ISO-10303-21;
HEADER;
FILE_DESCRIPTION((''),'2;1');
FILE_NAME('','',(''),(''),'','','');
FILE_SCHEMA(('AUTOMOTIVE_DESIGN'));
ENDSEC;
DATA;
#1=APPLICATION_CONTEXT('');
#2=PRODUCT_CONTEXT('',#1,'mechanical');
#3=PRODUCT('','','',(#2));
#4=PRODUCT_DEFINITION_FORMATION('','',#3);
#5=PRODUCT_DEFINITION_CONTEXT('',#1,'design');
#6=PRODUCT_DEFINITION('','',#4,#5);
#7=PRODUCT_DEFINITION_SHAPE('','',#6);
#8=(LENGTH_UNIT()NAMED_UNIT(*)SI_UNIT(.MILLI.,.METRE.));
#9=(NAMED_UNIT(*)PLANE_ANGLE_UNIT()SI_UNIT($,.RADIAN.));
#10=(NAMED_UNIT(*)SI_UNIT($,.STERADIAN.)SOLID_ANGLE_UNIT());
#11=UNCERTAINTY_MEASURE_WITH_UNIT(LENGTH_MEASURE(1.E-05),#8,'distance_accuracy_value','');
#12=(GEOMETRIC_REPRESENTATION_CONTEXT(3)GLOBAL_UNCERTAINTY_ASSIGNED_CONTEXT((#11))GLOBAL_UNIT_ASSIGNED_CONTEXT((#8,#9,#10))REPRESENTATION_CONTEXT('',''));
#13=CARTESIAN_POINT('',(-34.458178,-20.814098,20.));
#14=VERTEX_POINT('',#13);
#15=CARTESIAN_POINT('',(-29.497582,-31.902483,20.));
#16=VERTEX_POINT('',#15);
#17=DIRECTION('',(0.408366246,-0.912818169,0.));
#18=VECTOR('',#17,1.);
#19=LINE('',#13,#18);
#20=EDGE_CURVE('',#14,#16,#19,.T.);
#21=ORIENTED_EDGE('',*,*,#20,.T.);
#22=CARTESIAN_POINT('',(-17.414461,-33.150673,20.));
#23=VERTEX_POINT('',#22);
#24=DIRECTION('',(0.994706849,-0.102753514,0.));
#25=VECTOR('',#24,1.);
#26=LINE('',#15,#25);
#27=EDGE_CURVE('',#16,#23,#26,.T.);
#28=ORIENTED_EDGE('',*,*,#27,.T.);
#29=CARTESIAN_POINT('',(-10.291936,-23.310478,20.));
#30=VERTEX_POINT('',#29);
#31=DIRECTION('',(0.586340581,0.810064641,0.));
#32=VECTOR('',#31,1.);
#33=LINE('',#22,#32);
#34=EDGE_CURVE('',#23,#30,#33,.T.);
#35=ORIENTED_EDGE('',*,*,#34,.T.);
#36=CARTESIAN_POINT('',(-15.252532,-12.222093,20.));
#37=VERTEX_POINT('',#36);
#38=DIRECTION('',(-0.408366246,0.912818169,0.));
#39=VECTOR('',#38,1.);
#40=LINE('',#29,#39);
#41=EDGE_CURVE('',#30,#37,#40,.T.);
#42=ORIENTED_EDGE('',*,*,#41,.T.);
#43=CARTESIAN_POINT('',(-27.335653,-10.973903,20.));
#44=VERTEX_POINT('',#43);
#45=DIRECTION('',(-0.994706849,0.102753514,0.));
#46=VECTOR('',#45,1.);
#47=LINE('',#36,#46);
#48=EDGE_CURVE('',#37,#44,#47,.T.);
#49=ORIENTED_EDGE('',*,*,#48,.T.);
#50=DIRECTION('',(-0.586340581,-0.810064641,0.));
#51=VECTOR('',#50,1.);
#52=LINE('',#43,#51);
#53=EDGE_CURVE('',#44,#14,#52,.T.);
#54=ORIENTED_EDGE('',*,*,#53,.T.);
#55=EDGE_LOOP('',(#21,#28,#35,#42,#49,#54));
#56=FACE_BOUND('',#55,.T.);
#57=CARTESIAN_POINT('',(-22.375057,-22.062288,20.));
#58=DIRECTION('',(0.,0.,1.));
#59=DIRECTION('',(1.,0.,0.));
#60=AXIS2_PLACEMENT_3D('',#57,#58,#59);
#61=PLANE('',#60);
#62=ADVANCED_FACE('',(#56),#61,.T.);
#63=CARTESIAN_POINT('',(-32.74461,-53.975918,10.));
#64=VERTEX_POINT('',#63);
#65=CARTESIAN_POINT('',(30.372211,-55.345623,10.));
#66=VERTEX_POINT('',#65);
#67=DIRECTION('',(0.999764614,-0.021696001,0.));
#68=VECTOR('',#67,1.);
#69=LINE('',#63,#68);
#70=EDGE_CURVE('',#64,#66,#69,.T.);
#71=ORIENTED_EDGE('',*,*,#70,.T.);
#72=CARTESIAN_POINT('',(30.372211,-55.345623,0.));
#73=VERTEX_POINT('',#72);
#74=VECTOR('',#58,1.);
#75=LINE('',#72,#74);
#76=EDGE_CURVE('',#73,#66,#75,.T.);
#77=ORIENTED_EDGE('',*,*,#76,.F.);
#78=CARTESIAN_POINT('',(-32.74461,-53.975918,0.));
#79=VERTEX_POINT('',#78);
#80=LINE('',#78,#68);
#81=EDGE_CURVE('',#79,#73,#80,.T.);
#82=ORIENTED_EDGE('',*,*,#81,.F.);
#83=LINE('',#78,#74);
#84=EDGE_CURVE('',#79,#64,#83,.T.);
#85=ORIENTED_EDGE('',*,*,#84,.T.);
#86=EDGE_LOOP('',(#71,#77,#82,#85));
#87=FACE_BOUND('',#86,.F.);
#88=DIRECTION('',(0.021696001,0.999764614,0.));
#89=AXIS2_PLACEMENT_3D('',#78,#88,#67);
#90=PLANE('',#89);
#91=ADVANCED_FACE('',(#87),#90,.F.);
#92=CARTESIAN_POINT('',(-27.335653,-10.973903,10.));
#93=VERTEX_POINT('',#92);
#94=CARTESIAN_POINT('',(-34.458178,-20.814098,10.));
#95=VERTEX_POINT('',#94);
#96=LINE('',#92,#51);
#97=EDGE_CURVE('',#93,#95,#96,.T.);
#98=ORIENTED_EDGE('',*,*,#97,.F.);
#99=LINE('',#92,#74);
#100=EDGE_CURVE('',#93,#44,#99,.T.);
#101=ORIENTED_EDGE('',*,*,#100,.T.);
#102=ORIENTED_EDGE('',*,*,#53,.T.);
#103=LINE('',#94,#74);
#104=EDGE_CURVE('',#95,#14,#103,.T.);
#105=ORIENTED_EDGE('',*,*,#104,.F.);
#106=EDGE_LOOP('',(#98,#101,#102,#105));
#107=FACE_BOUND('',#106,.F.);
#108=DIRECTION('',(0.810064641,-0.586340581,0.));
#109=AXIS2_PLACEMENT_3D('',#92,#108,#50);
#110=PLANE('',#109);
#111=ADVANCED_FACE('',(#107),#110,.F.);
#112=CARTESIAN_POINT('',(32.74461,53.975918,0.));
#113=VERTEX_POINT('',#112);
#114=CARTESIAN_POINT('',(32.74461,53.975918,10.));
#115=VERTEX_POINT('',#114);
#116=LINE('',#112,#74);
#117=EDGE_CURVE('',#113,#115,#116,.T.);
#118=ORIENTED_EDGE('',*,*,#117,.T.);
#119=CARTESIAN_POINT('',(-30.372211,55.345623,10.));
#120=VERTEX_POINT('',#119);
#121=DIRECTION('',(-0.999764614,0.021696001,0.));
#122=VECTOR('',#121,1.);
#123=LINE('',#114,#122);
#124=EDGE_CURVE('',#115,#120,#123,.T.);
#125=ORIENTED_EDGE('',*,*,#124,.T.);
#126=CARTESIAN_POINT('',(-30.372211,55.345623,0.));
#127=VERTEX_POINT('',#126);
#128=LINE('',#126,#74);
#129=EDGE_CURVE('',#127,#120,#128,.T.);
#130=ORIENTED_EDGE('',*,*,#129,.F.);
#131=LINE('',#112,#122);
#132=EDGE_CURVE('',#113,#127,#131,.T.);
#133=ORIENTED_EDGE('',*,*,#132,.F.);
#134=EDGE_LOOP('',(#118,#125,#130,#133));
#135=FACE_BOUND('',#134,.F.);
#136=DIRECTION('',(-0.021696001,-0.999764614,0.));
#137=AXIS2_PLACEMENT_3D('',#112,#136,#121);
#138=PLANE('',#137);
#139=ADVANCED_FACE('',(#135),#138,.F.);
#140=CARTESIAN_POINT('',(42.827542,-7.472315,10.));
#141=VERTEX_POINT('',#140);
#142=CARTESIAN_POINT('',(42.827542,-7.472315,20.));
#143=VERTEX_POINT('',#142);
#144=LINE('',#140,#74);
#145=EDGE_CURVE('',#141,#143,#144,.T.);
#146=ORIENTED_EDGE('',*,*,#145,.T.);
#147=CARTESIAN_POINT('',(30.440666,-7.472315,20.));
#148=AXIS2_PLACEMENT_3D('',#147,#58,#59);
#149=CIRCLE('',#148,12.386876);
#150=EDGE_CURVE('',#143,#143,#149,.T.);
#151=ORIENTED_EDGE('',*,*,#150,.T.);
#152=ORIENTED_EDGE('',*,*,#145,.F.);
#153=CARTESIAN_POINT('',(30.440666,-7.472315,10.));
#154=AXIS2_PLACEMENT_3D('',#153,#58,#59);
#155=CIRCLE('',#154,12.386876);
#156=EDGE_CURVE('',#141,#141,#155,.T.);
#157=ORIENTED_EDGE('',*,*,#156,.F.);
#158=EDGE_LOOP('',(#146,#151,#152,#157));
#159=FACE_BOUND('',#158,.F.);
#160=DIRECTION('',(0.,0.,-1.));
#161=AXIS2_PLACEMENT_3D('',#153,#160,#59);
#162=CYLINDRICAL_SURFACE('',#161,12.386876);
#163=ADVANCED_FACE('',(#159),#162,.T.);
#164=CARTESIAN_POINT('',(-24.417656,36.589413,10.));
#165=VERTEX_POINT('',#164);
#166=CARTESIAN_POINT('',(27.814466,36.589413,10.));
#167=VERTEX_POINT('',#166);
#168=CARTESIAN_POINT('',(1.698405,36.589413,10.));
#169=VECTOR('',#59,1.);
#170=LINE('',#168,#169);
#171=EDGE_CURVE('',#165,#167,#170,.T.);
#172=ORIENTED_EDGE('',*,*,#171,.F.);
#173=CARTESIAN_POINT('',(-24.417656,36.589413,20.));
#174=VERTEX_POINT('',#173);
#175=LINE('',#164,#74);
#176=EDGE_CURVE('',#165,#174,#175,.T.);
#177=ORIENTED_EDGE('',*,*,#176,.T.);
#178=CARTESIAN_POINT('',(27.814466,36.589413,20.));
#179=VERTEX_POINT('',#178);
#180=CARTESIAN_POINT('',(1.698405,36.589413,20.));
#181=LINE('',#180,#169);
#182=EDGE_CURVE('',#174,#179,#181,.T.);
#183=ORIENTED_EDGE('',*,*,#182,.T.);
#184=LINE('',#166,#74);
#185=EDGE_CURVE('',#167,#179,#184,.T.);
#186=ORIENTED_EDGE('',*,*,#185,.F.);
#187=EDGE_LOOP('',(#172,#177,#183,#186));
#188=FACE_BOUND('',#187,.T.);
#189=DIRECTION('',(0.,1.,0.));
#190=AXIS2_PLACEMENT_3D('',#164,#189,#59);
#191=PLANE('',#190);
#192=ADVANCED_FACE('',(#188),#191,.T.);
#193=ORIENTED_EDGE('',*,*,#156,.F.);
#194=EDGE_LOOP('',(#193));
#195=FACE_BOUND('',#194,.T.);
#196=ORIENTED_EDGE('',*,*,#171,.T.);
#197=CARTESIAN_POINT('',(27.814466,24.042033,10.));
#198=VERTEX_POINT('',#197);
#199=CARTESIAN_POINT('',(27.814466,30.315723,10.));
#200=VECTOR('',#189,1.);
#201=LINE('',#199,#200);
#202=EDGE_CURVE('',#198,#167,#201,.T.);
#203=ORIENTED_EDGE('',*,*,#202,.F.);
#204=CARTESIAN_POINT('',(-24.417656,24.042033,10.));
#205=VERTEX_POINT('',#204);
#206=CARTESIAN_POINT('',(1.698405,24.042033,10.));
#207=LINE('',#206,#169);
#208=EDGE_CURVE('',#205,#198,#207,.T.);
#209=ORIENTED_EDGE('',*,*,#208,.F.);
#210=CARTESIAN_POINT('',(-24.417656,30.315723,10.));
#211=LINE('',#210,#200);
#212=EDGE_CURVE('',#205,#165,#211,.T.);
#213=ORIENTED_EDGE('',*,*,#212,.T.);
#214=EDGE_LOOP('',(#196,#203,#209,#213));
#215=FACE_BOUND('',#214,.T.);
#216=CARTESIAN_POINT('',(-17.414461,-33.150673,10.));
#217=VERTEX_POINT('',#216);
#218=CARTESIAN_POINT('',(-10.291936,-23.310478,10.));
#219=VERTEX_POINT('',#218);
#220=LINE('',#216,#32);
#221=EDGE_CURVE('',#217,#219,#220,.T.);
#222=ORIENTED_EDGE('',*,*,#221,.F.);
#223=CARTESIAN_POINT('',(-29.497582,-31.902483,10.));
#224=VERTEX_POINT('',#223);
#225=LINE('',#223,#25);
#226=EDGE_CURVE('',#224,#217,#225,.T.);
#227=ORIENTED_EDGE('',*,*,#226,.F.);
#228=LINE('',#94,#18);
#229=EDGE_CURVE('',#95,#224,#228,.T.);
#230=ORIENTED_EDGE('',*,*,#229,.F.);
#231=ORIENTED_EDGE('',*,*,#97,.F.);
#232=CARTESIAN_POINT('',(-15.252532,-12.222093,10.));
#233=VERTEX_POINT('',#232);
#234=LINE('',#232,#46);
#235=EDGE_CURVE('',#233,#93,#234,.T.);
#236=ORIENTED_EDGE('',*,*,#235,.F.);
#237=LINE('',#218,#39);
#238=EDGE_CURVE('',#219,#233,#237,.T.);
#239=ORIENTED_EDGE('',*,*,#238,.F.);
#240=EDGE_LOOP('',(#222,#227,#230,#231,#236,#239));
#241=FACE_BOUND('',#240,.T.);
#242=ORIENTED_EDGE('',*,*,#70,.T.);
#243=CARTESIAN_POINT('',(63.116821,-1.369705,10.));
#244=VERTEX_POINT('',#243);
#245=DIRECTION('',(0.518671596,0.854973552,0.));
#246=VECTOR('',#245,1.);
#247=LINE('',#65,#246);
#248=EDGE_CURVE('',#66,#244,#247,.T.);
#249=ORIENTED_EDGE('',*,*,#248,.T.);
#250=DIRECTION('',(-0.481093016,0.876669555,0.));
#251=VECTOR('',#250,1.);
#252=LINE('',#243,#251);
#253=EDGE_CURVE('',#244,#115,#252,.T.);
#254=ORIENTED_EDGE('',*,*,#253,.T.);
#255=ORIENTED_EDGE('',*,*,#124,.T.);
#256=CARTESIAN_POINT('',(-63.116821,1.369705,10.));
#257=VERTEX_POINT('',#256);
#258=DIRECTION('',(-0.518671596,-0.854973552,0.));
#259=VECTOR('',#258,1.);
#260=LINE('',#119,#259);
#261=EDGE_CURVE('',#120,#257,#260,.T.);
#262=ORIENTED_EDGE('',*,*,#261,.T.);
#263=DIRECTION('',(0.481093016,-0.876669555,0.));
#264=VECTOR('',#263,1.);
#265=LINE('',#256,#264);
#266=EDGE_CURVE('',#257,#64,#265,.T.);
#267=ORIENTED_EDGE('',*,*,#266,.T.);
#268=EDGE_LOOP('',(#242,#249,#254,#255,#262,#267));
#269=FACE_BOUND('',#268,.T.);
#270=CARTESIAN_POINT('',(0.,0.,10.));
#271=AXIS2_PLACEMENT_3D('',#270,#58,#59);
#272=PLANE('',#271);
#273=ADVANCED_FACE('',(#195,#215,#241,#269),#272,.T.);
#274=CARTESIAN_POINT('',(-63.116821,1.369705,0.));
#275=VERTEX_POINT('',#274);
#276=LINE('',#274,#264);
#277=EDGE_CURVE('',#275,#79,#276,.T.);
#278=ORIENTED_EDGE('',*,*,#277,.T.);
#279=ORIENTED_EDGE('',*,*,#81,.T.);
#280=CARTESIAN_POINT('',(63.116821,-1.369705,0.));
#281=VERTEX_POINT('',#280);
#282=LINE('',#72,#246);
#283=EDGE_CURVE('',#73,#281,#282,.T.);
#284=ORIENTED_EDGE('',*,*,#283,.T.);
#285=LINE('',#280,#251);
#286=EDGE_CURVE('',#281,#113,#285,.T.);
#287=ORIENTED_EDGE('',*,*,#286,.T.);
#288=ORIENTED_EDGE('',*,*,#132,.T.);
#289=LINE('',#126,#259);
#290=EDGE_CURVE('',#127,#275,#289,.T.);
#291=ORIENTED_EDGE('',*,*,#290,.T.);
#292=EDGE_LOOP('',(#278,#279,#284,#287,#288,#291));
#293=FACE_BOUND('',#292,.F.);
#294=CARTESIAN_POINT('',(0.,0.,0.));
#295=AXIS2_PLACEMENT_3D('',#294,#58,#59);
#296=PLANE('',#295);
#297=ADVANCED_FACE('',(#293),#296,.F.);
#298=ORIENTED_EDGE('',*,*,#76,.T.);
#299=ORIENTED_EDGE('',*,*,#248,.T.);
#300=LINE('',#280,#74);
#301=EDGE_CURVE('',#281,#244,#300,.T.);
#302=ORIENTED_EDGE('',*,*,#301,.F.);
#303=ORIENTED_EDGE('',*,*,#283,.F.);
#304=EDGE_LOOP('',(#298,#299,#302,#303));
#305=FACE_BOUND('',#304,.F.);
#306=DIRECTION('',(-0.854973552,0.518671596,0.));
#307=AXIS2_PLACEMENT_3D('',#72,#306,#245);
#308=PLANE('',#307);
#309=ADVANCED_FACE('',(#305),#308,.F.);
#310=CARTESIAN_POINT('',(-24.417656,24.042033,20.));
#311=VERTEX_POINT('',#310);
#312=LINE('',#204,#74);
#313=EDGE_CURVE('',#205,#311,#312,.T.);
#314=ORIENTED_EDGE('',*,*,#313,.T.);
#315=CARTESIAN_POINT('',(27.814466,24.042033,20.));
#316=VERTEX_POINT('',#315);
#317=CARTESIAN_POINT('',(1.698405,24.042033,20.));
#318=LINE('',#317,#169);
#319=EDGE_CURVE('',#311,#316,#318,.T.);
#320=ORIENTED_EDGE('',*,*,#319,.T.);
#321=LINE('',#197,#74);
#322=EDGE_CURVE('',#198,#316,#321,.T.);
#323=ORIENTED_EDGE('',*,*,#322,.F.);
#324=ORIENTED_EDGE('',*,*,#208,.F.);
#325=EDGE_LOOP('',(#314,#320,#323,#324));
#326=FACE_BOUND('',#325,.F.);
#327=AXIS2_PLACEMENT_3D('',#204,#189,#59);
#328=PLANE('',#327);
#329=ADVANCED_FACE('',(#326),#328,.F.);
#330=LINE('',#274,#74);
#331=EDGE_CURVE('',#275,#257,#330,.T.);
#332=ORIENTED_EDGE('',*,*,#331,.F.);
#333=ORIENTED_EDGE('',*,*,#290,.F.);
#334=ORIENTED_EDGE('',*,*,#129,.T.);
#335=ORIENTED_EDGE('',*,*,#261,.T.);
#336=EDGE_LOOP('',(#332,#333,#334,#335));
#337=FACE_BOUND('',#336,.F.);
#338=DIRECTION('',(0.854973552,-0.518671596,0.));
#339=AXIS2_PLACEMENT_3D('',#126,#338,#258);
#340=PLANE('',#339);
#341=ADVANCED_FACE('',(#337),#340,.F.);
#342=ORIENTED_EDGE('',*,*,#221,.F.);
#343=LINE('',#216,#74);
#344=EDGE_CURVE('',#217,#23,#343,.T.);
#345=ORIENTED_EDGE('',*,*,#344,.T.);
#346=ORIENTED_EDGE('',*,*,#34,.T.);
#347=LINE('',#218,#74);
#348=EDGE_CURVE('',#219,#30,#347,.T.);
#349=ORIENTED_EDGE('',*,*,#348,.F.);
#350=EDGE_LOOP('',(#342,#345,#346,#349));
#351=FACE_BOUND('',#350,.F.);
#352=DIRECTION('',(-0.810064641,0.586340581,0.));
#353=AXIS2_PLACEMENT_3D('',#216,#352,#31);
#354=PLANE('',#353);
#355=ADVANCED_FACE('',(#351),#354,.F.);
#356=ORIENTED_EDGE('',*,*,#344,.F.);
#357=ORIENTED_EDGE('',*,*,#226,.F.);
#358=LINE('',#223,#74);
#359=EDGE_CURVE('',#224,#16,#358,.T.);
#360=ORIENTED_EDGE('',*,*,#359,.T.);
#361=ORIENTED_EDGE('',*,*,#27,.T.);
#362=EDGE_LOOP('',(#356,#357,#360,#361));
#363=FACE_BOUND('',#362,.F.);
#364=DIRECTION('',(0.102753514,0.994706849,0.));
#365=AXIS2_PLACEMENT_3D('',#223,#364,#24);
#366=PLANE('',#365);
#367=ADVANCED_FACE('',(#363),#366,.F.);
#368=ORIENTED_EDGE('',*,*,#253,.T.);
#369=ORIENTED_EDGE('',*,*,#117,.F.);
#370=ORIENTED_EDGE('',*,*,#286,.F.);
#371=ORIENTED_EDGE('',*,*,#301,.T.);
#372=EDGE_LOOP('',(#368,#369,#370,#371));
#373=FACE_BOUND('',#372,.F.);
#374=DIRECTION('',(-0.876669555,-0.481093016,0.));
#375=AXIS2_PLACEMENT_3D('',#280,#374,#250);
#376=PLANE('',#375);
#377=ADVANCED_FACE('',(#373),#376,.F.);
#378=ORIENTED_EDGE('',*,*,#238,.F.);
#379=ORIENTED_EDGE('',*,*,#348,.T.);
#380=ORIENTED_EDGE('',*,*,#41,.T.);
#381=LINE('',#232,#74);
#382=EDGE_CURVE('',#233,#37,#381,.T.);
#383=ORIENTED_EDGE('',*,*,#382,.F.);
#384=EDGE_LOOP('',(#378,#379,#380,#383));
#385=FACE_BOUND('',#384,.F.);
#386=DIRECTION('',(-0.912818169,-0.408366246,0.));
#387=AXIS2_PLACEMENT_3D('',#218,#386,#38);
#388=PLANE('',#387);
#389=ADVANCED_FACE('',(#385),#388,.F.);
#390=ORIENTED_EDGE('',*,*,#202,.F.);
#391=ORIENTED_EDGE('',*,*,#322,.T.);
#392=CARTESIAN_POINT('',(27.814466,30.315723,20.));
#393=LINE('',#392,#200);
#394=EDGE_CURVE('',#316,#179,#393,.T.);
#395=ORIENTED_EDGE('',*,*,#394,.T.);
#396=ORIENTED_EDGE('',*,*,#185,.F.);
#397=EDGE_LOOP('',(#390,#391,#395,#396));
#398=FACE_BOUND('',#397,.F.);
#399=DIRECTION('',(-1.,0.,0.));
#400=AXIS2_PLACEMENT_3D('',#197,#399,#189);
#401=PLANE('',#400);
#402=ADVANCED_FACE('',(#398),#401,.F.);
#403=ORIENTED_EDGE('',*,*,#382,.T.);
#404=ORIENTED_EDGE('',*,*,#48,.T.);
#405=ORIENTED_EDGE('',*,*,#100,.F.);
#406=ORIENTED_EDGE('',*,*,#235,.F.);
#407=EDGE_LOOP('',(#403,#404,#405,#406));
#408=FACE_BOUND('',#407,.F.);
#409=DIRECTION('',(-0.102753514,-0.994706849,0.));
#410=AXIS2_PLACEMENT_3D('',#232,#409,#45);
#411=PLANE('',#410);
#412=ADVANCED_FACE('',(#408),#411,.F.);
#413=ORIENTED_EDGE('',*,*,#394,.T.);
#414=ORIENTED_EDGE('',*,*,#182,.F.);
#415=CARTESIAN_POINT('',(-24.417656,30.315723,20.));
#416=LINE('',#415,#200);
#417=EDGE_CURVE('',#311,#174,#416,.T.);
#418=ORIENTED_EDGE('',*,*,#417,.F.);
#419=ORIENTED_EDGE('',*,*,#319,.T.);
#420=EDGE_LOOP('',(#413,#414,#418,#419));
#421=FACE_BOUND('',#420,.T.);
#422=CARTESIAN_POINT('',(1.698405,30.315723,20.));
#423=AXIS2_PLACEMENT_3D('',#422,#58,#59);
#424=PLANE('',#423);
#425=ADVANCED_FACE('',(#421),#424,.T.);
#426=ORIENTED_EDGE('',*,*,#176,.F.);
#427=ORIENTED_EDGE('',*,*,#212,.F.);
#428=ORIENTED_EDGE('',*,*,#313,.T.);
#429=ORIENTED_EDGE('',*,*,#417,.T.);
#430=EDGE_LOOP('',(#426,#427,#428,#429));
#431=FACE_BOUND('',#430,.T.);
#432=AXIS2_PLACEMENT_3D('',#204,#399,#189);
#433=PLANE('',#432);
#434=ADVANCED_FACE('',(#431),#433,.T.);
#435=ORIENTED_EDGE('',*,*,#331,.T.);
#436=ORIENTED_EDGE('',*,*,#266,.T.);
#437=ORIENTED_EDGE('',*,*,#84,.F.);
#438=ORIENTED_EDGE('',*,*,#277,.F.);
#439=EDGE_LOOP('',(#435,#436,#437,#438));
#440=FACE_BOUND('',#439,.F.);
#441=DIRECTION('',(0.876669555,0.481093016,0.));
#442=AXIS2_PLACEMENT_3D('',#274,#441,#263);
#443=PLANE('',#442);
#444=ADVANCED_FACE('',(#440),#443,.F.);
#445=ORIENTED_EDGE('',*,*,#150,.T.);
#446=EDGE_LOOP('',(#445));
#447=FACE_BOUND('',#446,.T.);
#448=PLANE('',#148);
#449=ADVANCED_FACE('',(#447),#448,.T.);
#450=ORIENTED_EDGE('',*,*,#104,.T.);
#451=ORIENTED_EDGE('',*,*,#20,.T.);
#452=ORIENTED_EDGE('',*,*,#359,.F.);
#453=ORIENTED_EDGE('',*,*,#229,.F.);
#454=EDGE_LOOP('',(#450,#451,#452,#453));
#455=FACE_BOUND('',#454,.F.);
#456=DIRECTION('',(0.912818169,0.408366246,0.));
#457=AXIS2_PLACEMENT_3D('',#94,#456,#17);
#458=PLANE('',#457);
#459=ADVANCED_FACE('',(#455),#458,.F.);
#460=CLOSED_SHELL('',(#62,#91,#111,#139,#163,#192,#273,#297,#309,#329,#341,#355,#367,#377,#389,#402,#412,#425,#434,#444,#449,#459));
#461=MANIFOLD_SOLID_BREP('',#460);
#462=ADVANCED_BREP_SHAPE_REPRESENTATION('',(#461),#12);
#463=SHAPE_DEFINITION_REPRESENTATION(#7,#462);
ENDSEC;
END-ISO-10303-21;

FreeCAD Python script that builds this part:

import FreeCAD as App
import Part
import Sketcher
Q = App.Units.Quantity

doc = App.newDocument("Part")
body = doc.addObject("PartDesign::Body", "Body")

# Sketch on XY plane
sketch1 = body.newObject("Sketcher::SketchObject", "Sketch")
sketch1.AttachmentSupport = (doc.getObject("XY_Plane"), [""])
sketch1.MapMode = "FlatFace"
sketch1.addGeometry([
    Part.LineSegment(App.Vector(30.372211, -55.345623, 0), App.Vector(63.116821, -1.369705, 0)),  # 0
    Part.LineSegment(App.Vector(63.116821, -1.369705, 0), App.Vector(32.74461, 53.975918, 0)),  # 1
    Part.LineSegment(App.Vector(32.74461, 53.975918, 0), App.Vector(-30.372211, 55.345623, 0)),  # 2
    Part.LineSegment(App.Vector(-30.372211, 55.345623, 0), App.Vector(-63.116821, 1.369705, 0)),  # 3
    Part.LineSegment(App.Vector(-63.116821, 1.369705, 0), App.Vector(-32.74461, -53.975918, 0)),  # 4
    Part.LineSegment(App.Vector(-32.74461, -53.975918, 0), App.Vector(30.372211, -55.345623, 0)),  # 5
], False)
sketch1.addConstraint([
    Sketcher.Constraint("Coincident", 0, 2, 1, 1),
    Sketcher.Constraint("Coincident", 1, 2, 2, 1),
    Sketcher.Constraint("Coincident", 2, 2, 3, 1),
    Sketcher.Constraint("Coincident", 3, 2, 4, 1),
    Sketcher.Constraint("Coincident", 4, 2, 5, 1),
    Sketcher.Constraint("Coincident", 5, 2, 0, 1),
    Sketcher.Constraint("Symmetric", 0, 2, 3, 2, -1, 1),
    Sketcher.Constraint("Symmetric", 1, 2, 4, 2, -1, 1),
    Sketcher.Constraint("Symmetric", 2, 2, 5, 2, -1, 1),
    Sketcher.Constraint("Equal", 0, 1),
    Sketcher.Constraint("Equal", 1, 2),
    Sketcher.Constraint("DistanceX", 4, 2, 2, 2, Q("2.372399 mm")),
    Sketcher.Constraint("Distance", 0, Q("63.131681 mm")),
    Sketcher.Constraint("DistanceX", -1, 1, 0, 2, Q("63.116821 mm")),
    Sketcher.Constraint("DistanceX", -1, 1, 1, 2, Q("32.74461 mm")),
])
pad1 = body.newObject("PartDesign::Pad", "Pad")
pad1.Profile = sketch1
pad1.Length = 10

# Sketch on XY plane
sketch2 = body.newObject("Sketcher::SketchObject", "Sketch001")
sketch2.AttachmentSupport = (doc.getObject("XY_Plane"), [""])
sketch2.MapMode = "FlatFace"
sketch2.AttachmentOffset = App.Placement(App.Vector(0, 0, 10), App.Rotation())
sketch2.addGeometry([
    Part.Circle(App.Vector(30.440666, -7.472315, 0), App.Vector(0, 0, 1), 12.386876),  # 0
    Part.LineSegment(App.Vector(-24.417656, 36.589413, 0), App.Vector(-24.417656, 24.042033, 0)),  # 1
    Part.LineSegment(App.Vector(-24.417656, 24.042033, 0), App.Vector(27.814466, 24.042033, 0)),  # 2
    Part.LineSegment(App.Vector(27.814466, 24.042033, 0), App.Vector(27.814466, 36.589413, 0)),  # 3
    Part.LineSegment(App.Vector(27.814466, 36.589413, 0), App.Vector(-24.417656, 36.589413, 0)),  # 4
    Part.LineSegment(App.Vector(-17.414461, -33.150673, 0), App.Vector(-10.291936, -23.310478, 0)),  # 5
    Part.LineSegment(App.Vector(-10.291936, -23.310478, 0), App.Vector(-15.252532, -12.222093, 0)),  # 6
    Part.LineSegment(App.Vector(-15.252532, -12.222093, 0), App.Vector(-27.335653, -10.973903, 0)),  # 7
    Part.LineSegment(App.Vector(-27.335653, -10.973903, 0), App.Vector(-34.458178, -20.814098, 0)),  # 8
    Part.LineSegment(App.Vector(-34.458178, -20.814098, 0), App.Vector(-29.497582, -31.902483, 0)),  # 9
    Part.LineSegment(App.Vector(-29.497582, -31.902483, 0), App.Vector(-17.414461, -33.150673, 0)),  # 10
], False)
sketch2.addConstraint([
    Sketcher.Constraint("Coincident", 1, 2, 2, 1),
    Sketcher.Constraint("Coincident", 2, 2, 3, 1),
    Sketcher.Constraint("Coincident", 3, 2, 4, 1),
    Sketcher.Constraint("Coincident", 4, 2, 1, 1),
    Sketcher.Constraint("Coincident", 5, 2, 6, 1),
    Sketcher.Constraint("Coincident", 6, 2, 7, 1),
    Sketcher.Constraint("Coincident", 7, 2, 8, 1),
    Sketcher.Constraint("Coincident", 8, 2, 9, 1),
    Sketcher.Constraint("Coincident", 9, 2, 10, 1),
    Sketcher.Constraint("Coincident", 10, 2, 5, 1),
    Sketcher.Constraint("Vertical", 1),
    Sketcher.Constraint("Horizontal", 2),
    Sketcher.Constraint("Vertical", 3),
    Sketcher.Constraint("Horizontal", 4),
    Sketcher.Constraint("Parallel", 5, 8),
    Sketcher.Constraint("Parallel", 6, 9),
    Sketcher.Constraint("Parallel", 7, 10),
    Sketcher.Constraint("Equal", 5, 6),
    Sketcher.Constraint("Equal", 6, 7),
    Sketcher.Constraint("Equal", 7, 8),
    Sketcher.Constraint("Diameter", 0, Q("24.773752 mm")),
    Sketcher.Constraint("DistanceY", 1, 2, 1, 1, Q("12.547379 mm")),
    Sketcher.Constraint("DistanceY", 8, 2, -1, 1, Q("20.814098 mm")),
    Sketcher.Constraint("DistanceX", 2, 2, 0, 3, Q("2.6262 mm")),
    Sketcher.Constraint("DistanceX", 6, 2, 0, 3, Q("45.693198 mm")),
    Sketcher.Constraint("Distance", 5, Q("12.147419 mm")),
    Sketcher.Constraint("DistanceX", 2, 1, 2, 2, Q("52.232122 mm")),
    Sketcher.Constraint("DistanceY", 5, 2, -1, 1, Q("23.310478 mm")),
    Sketcher.Constraint("DistanceX", 10, 2, -1, 1, Q("17.414461 mm")),
    Sketcher.Constraint("DistanceY", 0, 3, 1, 2, Q("31.514348 mm")),
    Sketcher.Constraint("DistanceX", 1, 2, 5, 2, Q("14.12572 mm")),
    Sketcher.Constraint("DistanceY", 5, 2, 1, 2, Q("47.352511 mm")),
    Sketcher.Constraint("DistanceX", 7, 2, 6, 2, Q("12.083121 mm")),
])
pad2 = body.newObject("PartDesign::Pad", "Pad001")
pad2.Profile = sketch2
pad2.Length = 10

doc.recompute()
